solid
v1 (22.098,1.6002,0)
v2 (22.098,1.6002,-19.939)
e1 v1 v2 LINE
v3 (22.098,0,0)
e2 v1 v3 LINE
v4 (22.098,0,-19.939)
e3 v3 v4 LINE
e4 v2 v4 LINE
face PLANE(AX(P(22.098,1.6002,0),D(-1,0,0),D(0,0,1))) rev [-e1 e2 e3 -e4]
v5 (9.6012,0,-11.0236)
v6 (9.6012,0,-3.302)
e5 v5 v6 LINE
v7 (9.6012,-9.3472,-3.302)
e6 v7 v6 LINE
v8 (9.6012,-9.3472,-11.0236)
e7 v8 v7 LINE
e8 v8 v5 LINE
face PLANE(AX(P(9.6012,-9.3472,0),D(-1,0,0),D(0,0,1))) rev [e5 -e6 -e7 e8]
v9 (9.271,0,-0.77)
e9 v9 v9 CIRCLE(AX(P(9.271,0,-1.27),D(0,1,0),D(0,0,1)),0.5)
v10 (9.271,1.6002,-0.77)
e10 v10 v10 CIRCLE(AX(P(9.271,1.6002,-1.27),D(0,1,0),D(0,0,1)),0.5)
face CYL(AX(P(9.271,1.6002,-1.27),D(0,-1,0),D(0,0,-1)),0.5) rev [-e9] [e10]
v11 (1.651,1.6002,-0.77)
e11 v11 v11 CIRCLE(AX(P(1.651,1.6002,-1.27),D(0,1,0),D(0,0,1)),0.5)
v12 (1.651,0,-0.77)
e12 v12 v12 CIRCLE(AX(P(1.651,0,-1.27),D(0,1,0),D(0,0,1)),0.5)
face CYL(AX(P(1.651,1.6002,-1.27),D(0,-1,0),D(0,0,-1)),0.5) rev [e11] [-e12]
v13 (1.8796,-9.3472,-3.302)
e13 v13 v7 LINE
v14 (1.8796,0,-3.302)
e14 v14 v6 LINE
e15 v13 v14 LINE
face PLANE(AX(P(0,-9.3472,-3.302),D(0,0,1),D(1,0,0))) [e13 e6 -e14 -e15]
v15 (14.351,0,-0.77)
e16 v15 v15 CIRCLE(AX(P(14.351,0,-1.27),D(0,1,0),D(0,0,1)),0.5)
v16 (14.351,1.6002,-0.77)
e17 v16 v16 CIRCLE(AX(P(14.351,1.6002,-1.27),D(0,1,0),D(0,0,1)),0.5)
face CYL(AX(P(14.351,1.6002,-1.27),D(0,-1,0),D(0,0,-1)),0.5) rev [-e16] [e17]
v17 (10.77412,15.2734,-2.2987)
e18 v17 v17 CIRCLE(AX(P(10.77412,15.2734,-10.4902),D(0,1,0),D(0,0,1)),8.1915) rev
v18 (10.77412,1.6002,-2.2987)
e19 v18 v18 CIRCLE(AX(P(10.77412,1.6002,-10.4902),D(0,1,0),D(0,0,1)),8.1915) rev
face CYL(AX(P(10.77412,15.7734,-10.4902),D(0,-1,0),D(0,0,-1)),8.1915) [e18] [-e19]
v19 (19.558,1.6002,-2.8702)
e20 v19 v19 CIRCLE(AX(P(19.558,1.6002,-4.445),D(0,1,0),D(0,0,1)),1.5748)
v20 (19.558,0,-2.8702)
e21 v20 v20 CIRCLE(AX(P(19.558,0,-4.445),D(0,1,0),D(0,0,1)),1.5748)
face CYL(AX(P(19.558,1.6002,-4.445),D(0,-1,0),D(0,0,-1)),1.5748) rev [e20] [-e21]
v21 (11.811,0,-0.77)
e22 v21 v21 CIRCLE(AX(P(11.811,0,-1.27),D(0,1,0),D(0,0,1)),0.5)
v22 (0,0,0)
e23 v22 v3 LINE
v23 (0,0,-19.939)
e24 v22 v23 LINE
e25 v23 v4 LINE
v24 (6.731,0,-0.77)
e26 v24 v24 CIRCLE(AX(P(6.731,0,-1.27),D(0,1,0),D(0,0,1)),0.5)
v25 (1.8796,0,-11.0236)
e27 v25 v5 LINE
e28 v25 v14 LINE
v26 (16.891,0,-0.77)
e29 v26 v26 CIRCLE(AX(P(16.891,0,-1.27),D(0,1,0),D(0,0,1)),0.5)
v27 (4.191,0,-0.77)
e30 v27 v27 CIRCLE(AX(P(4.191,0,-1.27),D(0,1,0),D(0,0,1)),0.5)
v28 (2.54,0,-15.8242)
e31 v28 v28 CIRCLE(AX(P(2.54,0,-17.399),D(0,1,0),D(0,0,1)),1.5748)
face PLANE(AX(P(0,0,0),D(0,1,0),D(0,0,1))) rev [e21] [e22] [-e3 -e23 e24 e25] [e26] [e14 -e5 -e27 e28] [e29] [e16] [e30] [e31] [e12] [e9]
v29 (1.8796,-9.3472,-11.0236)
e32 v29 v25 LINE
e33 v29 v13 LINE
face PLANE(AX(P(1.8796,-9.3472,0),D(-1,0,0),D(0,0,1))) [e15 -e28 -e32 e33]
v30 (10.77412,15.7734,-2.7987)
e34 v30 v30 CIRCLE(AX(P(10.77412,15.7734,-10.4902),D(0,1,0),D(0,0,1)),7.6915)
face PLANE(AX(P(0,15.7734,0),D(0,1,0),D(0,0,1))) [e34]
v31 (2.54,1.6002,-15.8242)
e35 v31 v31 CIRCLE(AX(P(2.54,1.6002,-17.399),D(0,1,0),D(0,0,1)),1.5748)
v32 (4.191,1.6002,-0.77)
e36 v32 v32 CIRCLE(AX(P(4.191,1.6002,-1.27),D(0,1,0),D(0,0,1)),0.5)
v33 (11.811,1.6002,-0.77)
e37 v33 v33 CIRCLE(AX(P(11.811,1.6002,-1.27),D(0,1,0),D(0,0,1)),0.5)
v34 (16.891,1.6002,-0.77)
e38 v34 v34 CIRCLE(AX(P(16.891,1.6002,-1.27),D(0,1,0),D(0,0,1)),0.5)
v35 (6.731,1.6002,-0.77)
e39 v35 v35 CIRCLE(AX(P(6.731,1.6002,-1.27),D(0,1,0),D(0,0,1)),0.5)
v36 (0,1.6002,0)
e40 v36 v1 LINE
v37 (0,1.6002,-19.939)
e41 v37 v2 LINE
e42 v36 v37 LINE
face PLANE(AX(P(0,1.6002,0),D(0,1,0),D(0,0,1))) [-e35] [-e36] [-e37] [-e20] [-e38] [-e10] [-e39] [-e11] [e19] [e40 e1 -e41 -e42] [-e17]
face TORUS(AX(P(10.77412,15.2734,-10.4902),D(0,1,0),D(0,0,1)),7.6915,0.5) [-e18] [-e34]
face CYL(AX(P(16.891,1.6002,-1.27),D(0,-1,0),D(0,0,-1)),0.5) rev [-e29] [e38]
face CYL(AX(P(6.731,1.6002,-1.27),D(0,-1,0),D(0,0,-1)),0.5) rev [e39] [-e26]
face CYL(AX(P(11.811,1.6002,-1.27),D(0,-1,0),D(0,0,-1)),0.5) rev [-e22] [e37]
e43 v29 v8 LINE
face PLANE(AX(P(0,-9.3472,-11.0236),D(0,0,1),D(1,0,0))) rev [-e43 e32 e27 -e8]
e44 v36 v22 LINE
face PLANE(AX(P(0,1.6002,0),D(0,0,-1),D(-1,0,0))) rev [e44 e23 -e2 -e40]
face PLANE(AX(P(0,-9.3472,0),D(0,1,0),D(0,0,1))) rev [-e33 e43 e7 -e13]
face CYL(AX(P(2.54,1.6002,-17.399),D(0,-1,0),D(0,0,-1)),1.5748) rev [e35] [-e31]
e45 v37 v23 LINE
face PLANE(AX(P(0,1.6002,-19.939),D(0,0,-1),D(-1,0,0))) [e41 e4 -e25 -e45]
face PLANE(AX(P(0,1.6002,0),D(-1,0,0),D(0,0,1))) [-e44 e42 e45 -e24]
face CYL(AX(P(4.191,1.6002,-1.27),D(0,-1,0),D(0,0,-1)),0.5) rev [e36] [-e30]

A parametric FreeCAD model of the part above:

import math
import FreeCAD as App
import Part
import Sketcher
from FreeCAD import Vector
Q = App.Units.Quantity


def edges_at(feature, points):
    """Names of the edges that pass closest to the given points."""
    edges = feature.Shape.Edges
    near = lambda p: min(range(len(edges)), key=lambda i: edges[i].distToShape(Part.Vertex(*p))[0])
    return sorted({f"Edge{near(p) + 1}" for p in points})

doc = App.newDocument("Part")
body = doc.addObject("PartDesign::Body", "Body")

# Sketch on XZ plane
sketch1 = body.newObject("Sketcher::SketchObject", "Sketch")
sketch1.AttachmentSupport = (doc.getObject("XZ_Plane"), [""])
sketch1.MapMode = "FlatFace"
sketch1.addGeometry([
    Part.LineSegment(Vector(0, -19.9, 0), Vector(0, 0, 0)),  # 0
    Part.LineSegment(Vector(0, 0, 0), Vector(22.1, 0, 0)),  # 1
    Part.LineSegment(Vector(22.1, 0, 0), Vector(22.1, -19.9, 0)),  # 2
    Part.LineSegment(Vector(22.1, -19.9, 0), Vector(0, -19.9, 0)),  # 3
    Part.Circle(Vector(1.7, -1.3, 0), Vector(0, 0, 1), 0.5),  # 4
    Part.Circle(Vector(4.2, -1.3, 0), Vector(0, 0, 1), 0.5),  # 5
    Part.Circle(Vector(6.7, -1.3, 0), Vector(0, 0, 1), 0.5),  # 6
    Part.Circle(Vector(9.3, -1.3, 0), Vector(0, 0, 1), 0.5),  # 7
    Part.Circle(Vector(11.8, -1.3, 0), Vector(0, 0, 1), 0.5),  # 8
    Part.Circle(Vector(14.4, -1.3, 0), Vector(0, 0, 1), 0.5),  # 9
    Part.Circle(Vector(16.9, -1.3, 0), Vector(0, 0, 1), 0.5),  # 10
    Part.Circle(Vector(19.6, -4.4, 0), Vector(0, 0, 1), 1.6),  # 11
    Part.Circle(Vector(2.5, -17.4, 0), Vector(0, 0, 1), 1.6),  # 12
], False)
sketch1.addConstraint([
    Sketcher.Constraint("Coincident", 0, 2, 1, 1),
    Sketcher.Constraint("Coincident", 1, 2, 2, 1),
    Sketcher.Constraint("Coincident", 2, 2, 3, 1),
    Sketcher.Constraint("Coincident", 3, 2, 0, 1),
    Sketcher.Constraint("Vertical", 0),
    Sketcher.Constraint("Horizontal", 1),
    Sketcher.Constraint("Vertical", 2),
    Sketcher.Constraint("Horizontal", 3),
    Sketcher.Constraint("Coincident", 0, 2, -1, 1),
    Sketcher.Constraint("Equal", 4, 5),
    Sketcher.Constraint("Equal", 5, 6),
    Sketcher.Constraint("Equal", 6, 7),
    Sketcher.Constraint("Equal", 7, 8),
    Sketcher.Constraint("Equal", 8, 9),
    Sketcher.Constraint("Equal", 9, 10),
    Sketcher.Constraint("Equal", 11, 12),
    Sketcher.Constraint("Horizontal", 4, 3, 5, 3),
    Sketcher.Constraint("Horizontal", 5, 3, 6, 3),
    Sketcher.Constraint("Horizontal", 6, 3, 7, 3),
    Sketcher.Constraint("Horizontal", 7, 3, 8, 3),
    Sketcher.Constraint("Horizontal", 8, 3, 9, 3),
    Sketcher.Constraint("Horizontal", 9, 3, 10, 3),
    Sketcher.Constraint("Diameter", 11, Q("0.124 in")),
    Sketcher.Constraint("DistanceX", 1, 1, 1, 2, Q("0.87 in")),
    Sketcher.Constraint("DistanceX", -1, 1, 12, 3, Q("0.1 in")),
    Sketcher.Constraint("DistanceX", 4, 3, 5, 3, Q("0.1 in")),
    Sketcher.Constraint("DistanceX", 5, 3, 6, 3, Q("0.1 in")),
    Sketcher.Constraint("DistanceX", 6, 3, 7, 3, Q("0.1 in")),
    Sketcher.Constraint("DistanceX", 7, 3, 8, 3, Q("0.1 in")),
    Sketcher.Constraint("DistanceX", 8, 3, 9, 3, Q("0.1 in")),
    Sketcher.Constraint("DistanceX", 9, 3, 10, 3, Q("0.1 in")),
    Sketcher.Constraint("DistanceX", 11, 3, 1, 2, Q("0.1 in")),
    Sketcher.Constraint("DistanceY", 2, 2, 12, 3, Q("0.1 in")),
    Sketcher.Constraint("Diameter", 4, 1.0),
    Sketcher.Constraint("DistanceY", 0, 1, 0, 2, Q("0.785 in")),
    Sketcher.Constraint("DistanceY", 4, 3, -1, 1, Q("0.05 in")),
    Sketcher.Constraint("DistanceY", 2, 2, 11, 3, Q("0.61 in")),
    Sketcher.Constraint("DistanceX", -1, 1, 4, 3, Q("0.065 in")),
])
pad1 = body.newObject("PartDesign::Pad", "Pad")
pad1.Profile = sketch1
pad1.Length = Q("0.063 in")
pad1.Reversed = True

# Sketch on XZ plane
sketch2 = body.newObject("Sketcher::SketchObject", "Sketch001")
sketch2.AttachmentSupport = (doc.getObject("XZ_Plane"), [""])
sketch2.MapMode = "FlatFace"
sketch2.addGeometry([
    Part.LineSegment(Vector(2, -11, 0), Vector(2, -3, 0)),
    Part.LineSegment(Vector(2, -3, 0), Vector(10, -3, 0)),
    Part.LineSegment(Vector(10, -3, 0), Vector(10, -11, 0)),
    Part.LineSegment(Vector(10, -11, 0), Vector(2, -11, 0)),
], False)
sketch2.addConstraint([
    Sketcher.Constraint("Coincident", 0, 2, 1, 1),
    Sketcher.Constraint("Coincident", 1, 2, 2, 1),
    Sketcher.Constraint("Coincident", 2, 2, 3, 1),
    Sketcher.Constraint("Coincident", 3, 2, 0, 1),
    Sketcher.Constraint("Vertical", 0),
    Sketcher.Constraint("Horizontal", 1),
    Sketcher.Constraint("Vertical", 2),
    Sketcher.Constraint("Horizontal", 3),
    Sketcher.Constraint("Equal", 3, 0),
    Sketcher.Constraint("DistanceX", 1, 1, 1, 2, Q("0.304 in")),
    Sketcher.Constraint("DistanceY", 0, 2, -1, 1, Q("0.13 in")),
    Sketcher.Constraint("DistanceX", -1, 1, 0, 2, Q("0.074 in")),
])
pad2 = body.newObject("PartDesign::Pad", "Pad001")
pad2.Profile = sketch2
pad2.Length = Q("0.368 in")

# Sketch on XZ plane
sketch3 = body.newObject("Sketcher::SketchObject", "Sketch002")
sketch3.AttachmentSupport = (doc.getObject("XZ_Plane"), [""])
sketch3.MapMode = "FlatFace"
sketch3.addGeometry([
    Part.ArcOfCircle(Part.Circle(Vector(11, -10, 0), Vector(0, 0, 1), 8), math.radians(-176), math.radians(0)),
    Part.ArcOfCircle(Part.Circle(Vector(11, -10, 0), Vector(0, 0, 1), 8), math.radians(119), math.radians(184)),
    Part.ArcOfCircle(Part.Circle(Vector(11, -10, 0), Vector(0, 0, 1), 8), math.radians(0), math.radians(119)),
], False)
sketch3.addConstraint([
    Sketcher.Constraint("Tangent", 0, 1, 1, 2),
    Sketcher.Constraint("Tangent", 1, 1, 2, 2),
    Sketcher.Constraint("Tangent", 2, 1, 0, 2),
    Sketcher.Constraint("Horizontal", 1, 3, 2, 1),
    Sketcher.Constraint("Radius", 0, Q("0.3225 in")),
    Sketcher.Constraint("DistanceY", 1, 1, -1, 1, Q("0.13 in")),
    Sketcher.Constraint("DistanceY", 0, 3, -1, 1, Q("0.413 in")),
    Sketcher.Constraint("DistanceY", 0, 1, -1, 1, Q("0.434 in")),
    Sketcher.Constraint("DistanceX", -1, 1, 0, 3, 10.77412),
])
pad3 = body.newObject("PartDesign::Pad", "Pad002")
pad3.Profile = sketch3
pad3.Length = Q("0.621 in")
pad3.Reversed = True
doc.recompute()

fillet = body.newObject("PartDesign::Fillet", "Fillet")
fillet.Base = (pad3, edges_at(pad3, [(14.953, 15.773, -3.445)]))
fillet.Radius = 0.5

doc.recompute()
